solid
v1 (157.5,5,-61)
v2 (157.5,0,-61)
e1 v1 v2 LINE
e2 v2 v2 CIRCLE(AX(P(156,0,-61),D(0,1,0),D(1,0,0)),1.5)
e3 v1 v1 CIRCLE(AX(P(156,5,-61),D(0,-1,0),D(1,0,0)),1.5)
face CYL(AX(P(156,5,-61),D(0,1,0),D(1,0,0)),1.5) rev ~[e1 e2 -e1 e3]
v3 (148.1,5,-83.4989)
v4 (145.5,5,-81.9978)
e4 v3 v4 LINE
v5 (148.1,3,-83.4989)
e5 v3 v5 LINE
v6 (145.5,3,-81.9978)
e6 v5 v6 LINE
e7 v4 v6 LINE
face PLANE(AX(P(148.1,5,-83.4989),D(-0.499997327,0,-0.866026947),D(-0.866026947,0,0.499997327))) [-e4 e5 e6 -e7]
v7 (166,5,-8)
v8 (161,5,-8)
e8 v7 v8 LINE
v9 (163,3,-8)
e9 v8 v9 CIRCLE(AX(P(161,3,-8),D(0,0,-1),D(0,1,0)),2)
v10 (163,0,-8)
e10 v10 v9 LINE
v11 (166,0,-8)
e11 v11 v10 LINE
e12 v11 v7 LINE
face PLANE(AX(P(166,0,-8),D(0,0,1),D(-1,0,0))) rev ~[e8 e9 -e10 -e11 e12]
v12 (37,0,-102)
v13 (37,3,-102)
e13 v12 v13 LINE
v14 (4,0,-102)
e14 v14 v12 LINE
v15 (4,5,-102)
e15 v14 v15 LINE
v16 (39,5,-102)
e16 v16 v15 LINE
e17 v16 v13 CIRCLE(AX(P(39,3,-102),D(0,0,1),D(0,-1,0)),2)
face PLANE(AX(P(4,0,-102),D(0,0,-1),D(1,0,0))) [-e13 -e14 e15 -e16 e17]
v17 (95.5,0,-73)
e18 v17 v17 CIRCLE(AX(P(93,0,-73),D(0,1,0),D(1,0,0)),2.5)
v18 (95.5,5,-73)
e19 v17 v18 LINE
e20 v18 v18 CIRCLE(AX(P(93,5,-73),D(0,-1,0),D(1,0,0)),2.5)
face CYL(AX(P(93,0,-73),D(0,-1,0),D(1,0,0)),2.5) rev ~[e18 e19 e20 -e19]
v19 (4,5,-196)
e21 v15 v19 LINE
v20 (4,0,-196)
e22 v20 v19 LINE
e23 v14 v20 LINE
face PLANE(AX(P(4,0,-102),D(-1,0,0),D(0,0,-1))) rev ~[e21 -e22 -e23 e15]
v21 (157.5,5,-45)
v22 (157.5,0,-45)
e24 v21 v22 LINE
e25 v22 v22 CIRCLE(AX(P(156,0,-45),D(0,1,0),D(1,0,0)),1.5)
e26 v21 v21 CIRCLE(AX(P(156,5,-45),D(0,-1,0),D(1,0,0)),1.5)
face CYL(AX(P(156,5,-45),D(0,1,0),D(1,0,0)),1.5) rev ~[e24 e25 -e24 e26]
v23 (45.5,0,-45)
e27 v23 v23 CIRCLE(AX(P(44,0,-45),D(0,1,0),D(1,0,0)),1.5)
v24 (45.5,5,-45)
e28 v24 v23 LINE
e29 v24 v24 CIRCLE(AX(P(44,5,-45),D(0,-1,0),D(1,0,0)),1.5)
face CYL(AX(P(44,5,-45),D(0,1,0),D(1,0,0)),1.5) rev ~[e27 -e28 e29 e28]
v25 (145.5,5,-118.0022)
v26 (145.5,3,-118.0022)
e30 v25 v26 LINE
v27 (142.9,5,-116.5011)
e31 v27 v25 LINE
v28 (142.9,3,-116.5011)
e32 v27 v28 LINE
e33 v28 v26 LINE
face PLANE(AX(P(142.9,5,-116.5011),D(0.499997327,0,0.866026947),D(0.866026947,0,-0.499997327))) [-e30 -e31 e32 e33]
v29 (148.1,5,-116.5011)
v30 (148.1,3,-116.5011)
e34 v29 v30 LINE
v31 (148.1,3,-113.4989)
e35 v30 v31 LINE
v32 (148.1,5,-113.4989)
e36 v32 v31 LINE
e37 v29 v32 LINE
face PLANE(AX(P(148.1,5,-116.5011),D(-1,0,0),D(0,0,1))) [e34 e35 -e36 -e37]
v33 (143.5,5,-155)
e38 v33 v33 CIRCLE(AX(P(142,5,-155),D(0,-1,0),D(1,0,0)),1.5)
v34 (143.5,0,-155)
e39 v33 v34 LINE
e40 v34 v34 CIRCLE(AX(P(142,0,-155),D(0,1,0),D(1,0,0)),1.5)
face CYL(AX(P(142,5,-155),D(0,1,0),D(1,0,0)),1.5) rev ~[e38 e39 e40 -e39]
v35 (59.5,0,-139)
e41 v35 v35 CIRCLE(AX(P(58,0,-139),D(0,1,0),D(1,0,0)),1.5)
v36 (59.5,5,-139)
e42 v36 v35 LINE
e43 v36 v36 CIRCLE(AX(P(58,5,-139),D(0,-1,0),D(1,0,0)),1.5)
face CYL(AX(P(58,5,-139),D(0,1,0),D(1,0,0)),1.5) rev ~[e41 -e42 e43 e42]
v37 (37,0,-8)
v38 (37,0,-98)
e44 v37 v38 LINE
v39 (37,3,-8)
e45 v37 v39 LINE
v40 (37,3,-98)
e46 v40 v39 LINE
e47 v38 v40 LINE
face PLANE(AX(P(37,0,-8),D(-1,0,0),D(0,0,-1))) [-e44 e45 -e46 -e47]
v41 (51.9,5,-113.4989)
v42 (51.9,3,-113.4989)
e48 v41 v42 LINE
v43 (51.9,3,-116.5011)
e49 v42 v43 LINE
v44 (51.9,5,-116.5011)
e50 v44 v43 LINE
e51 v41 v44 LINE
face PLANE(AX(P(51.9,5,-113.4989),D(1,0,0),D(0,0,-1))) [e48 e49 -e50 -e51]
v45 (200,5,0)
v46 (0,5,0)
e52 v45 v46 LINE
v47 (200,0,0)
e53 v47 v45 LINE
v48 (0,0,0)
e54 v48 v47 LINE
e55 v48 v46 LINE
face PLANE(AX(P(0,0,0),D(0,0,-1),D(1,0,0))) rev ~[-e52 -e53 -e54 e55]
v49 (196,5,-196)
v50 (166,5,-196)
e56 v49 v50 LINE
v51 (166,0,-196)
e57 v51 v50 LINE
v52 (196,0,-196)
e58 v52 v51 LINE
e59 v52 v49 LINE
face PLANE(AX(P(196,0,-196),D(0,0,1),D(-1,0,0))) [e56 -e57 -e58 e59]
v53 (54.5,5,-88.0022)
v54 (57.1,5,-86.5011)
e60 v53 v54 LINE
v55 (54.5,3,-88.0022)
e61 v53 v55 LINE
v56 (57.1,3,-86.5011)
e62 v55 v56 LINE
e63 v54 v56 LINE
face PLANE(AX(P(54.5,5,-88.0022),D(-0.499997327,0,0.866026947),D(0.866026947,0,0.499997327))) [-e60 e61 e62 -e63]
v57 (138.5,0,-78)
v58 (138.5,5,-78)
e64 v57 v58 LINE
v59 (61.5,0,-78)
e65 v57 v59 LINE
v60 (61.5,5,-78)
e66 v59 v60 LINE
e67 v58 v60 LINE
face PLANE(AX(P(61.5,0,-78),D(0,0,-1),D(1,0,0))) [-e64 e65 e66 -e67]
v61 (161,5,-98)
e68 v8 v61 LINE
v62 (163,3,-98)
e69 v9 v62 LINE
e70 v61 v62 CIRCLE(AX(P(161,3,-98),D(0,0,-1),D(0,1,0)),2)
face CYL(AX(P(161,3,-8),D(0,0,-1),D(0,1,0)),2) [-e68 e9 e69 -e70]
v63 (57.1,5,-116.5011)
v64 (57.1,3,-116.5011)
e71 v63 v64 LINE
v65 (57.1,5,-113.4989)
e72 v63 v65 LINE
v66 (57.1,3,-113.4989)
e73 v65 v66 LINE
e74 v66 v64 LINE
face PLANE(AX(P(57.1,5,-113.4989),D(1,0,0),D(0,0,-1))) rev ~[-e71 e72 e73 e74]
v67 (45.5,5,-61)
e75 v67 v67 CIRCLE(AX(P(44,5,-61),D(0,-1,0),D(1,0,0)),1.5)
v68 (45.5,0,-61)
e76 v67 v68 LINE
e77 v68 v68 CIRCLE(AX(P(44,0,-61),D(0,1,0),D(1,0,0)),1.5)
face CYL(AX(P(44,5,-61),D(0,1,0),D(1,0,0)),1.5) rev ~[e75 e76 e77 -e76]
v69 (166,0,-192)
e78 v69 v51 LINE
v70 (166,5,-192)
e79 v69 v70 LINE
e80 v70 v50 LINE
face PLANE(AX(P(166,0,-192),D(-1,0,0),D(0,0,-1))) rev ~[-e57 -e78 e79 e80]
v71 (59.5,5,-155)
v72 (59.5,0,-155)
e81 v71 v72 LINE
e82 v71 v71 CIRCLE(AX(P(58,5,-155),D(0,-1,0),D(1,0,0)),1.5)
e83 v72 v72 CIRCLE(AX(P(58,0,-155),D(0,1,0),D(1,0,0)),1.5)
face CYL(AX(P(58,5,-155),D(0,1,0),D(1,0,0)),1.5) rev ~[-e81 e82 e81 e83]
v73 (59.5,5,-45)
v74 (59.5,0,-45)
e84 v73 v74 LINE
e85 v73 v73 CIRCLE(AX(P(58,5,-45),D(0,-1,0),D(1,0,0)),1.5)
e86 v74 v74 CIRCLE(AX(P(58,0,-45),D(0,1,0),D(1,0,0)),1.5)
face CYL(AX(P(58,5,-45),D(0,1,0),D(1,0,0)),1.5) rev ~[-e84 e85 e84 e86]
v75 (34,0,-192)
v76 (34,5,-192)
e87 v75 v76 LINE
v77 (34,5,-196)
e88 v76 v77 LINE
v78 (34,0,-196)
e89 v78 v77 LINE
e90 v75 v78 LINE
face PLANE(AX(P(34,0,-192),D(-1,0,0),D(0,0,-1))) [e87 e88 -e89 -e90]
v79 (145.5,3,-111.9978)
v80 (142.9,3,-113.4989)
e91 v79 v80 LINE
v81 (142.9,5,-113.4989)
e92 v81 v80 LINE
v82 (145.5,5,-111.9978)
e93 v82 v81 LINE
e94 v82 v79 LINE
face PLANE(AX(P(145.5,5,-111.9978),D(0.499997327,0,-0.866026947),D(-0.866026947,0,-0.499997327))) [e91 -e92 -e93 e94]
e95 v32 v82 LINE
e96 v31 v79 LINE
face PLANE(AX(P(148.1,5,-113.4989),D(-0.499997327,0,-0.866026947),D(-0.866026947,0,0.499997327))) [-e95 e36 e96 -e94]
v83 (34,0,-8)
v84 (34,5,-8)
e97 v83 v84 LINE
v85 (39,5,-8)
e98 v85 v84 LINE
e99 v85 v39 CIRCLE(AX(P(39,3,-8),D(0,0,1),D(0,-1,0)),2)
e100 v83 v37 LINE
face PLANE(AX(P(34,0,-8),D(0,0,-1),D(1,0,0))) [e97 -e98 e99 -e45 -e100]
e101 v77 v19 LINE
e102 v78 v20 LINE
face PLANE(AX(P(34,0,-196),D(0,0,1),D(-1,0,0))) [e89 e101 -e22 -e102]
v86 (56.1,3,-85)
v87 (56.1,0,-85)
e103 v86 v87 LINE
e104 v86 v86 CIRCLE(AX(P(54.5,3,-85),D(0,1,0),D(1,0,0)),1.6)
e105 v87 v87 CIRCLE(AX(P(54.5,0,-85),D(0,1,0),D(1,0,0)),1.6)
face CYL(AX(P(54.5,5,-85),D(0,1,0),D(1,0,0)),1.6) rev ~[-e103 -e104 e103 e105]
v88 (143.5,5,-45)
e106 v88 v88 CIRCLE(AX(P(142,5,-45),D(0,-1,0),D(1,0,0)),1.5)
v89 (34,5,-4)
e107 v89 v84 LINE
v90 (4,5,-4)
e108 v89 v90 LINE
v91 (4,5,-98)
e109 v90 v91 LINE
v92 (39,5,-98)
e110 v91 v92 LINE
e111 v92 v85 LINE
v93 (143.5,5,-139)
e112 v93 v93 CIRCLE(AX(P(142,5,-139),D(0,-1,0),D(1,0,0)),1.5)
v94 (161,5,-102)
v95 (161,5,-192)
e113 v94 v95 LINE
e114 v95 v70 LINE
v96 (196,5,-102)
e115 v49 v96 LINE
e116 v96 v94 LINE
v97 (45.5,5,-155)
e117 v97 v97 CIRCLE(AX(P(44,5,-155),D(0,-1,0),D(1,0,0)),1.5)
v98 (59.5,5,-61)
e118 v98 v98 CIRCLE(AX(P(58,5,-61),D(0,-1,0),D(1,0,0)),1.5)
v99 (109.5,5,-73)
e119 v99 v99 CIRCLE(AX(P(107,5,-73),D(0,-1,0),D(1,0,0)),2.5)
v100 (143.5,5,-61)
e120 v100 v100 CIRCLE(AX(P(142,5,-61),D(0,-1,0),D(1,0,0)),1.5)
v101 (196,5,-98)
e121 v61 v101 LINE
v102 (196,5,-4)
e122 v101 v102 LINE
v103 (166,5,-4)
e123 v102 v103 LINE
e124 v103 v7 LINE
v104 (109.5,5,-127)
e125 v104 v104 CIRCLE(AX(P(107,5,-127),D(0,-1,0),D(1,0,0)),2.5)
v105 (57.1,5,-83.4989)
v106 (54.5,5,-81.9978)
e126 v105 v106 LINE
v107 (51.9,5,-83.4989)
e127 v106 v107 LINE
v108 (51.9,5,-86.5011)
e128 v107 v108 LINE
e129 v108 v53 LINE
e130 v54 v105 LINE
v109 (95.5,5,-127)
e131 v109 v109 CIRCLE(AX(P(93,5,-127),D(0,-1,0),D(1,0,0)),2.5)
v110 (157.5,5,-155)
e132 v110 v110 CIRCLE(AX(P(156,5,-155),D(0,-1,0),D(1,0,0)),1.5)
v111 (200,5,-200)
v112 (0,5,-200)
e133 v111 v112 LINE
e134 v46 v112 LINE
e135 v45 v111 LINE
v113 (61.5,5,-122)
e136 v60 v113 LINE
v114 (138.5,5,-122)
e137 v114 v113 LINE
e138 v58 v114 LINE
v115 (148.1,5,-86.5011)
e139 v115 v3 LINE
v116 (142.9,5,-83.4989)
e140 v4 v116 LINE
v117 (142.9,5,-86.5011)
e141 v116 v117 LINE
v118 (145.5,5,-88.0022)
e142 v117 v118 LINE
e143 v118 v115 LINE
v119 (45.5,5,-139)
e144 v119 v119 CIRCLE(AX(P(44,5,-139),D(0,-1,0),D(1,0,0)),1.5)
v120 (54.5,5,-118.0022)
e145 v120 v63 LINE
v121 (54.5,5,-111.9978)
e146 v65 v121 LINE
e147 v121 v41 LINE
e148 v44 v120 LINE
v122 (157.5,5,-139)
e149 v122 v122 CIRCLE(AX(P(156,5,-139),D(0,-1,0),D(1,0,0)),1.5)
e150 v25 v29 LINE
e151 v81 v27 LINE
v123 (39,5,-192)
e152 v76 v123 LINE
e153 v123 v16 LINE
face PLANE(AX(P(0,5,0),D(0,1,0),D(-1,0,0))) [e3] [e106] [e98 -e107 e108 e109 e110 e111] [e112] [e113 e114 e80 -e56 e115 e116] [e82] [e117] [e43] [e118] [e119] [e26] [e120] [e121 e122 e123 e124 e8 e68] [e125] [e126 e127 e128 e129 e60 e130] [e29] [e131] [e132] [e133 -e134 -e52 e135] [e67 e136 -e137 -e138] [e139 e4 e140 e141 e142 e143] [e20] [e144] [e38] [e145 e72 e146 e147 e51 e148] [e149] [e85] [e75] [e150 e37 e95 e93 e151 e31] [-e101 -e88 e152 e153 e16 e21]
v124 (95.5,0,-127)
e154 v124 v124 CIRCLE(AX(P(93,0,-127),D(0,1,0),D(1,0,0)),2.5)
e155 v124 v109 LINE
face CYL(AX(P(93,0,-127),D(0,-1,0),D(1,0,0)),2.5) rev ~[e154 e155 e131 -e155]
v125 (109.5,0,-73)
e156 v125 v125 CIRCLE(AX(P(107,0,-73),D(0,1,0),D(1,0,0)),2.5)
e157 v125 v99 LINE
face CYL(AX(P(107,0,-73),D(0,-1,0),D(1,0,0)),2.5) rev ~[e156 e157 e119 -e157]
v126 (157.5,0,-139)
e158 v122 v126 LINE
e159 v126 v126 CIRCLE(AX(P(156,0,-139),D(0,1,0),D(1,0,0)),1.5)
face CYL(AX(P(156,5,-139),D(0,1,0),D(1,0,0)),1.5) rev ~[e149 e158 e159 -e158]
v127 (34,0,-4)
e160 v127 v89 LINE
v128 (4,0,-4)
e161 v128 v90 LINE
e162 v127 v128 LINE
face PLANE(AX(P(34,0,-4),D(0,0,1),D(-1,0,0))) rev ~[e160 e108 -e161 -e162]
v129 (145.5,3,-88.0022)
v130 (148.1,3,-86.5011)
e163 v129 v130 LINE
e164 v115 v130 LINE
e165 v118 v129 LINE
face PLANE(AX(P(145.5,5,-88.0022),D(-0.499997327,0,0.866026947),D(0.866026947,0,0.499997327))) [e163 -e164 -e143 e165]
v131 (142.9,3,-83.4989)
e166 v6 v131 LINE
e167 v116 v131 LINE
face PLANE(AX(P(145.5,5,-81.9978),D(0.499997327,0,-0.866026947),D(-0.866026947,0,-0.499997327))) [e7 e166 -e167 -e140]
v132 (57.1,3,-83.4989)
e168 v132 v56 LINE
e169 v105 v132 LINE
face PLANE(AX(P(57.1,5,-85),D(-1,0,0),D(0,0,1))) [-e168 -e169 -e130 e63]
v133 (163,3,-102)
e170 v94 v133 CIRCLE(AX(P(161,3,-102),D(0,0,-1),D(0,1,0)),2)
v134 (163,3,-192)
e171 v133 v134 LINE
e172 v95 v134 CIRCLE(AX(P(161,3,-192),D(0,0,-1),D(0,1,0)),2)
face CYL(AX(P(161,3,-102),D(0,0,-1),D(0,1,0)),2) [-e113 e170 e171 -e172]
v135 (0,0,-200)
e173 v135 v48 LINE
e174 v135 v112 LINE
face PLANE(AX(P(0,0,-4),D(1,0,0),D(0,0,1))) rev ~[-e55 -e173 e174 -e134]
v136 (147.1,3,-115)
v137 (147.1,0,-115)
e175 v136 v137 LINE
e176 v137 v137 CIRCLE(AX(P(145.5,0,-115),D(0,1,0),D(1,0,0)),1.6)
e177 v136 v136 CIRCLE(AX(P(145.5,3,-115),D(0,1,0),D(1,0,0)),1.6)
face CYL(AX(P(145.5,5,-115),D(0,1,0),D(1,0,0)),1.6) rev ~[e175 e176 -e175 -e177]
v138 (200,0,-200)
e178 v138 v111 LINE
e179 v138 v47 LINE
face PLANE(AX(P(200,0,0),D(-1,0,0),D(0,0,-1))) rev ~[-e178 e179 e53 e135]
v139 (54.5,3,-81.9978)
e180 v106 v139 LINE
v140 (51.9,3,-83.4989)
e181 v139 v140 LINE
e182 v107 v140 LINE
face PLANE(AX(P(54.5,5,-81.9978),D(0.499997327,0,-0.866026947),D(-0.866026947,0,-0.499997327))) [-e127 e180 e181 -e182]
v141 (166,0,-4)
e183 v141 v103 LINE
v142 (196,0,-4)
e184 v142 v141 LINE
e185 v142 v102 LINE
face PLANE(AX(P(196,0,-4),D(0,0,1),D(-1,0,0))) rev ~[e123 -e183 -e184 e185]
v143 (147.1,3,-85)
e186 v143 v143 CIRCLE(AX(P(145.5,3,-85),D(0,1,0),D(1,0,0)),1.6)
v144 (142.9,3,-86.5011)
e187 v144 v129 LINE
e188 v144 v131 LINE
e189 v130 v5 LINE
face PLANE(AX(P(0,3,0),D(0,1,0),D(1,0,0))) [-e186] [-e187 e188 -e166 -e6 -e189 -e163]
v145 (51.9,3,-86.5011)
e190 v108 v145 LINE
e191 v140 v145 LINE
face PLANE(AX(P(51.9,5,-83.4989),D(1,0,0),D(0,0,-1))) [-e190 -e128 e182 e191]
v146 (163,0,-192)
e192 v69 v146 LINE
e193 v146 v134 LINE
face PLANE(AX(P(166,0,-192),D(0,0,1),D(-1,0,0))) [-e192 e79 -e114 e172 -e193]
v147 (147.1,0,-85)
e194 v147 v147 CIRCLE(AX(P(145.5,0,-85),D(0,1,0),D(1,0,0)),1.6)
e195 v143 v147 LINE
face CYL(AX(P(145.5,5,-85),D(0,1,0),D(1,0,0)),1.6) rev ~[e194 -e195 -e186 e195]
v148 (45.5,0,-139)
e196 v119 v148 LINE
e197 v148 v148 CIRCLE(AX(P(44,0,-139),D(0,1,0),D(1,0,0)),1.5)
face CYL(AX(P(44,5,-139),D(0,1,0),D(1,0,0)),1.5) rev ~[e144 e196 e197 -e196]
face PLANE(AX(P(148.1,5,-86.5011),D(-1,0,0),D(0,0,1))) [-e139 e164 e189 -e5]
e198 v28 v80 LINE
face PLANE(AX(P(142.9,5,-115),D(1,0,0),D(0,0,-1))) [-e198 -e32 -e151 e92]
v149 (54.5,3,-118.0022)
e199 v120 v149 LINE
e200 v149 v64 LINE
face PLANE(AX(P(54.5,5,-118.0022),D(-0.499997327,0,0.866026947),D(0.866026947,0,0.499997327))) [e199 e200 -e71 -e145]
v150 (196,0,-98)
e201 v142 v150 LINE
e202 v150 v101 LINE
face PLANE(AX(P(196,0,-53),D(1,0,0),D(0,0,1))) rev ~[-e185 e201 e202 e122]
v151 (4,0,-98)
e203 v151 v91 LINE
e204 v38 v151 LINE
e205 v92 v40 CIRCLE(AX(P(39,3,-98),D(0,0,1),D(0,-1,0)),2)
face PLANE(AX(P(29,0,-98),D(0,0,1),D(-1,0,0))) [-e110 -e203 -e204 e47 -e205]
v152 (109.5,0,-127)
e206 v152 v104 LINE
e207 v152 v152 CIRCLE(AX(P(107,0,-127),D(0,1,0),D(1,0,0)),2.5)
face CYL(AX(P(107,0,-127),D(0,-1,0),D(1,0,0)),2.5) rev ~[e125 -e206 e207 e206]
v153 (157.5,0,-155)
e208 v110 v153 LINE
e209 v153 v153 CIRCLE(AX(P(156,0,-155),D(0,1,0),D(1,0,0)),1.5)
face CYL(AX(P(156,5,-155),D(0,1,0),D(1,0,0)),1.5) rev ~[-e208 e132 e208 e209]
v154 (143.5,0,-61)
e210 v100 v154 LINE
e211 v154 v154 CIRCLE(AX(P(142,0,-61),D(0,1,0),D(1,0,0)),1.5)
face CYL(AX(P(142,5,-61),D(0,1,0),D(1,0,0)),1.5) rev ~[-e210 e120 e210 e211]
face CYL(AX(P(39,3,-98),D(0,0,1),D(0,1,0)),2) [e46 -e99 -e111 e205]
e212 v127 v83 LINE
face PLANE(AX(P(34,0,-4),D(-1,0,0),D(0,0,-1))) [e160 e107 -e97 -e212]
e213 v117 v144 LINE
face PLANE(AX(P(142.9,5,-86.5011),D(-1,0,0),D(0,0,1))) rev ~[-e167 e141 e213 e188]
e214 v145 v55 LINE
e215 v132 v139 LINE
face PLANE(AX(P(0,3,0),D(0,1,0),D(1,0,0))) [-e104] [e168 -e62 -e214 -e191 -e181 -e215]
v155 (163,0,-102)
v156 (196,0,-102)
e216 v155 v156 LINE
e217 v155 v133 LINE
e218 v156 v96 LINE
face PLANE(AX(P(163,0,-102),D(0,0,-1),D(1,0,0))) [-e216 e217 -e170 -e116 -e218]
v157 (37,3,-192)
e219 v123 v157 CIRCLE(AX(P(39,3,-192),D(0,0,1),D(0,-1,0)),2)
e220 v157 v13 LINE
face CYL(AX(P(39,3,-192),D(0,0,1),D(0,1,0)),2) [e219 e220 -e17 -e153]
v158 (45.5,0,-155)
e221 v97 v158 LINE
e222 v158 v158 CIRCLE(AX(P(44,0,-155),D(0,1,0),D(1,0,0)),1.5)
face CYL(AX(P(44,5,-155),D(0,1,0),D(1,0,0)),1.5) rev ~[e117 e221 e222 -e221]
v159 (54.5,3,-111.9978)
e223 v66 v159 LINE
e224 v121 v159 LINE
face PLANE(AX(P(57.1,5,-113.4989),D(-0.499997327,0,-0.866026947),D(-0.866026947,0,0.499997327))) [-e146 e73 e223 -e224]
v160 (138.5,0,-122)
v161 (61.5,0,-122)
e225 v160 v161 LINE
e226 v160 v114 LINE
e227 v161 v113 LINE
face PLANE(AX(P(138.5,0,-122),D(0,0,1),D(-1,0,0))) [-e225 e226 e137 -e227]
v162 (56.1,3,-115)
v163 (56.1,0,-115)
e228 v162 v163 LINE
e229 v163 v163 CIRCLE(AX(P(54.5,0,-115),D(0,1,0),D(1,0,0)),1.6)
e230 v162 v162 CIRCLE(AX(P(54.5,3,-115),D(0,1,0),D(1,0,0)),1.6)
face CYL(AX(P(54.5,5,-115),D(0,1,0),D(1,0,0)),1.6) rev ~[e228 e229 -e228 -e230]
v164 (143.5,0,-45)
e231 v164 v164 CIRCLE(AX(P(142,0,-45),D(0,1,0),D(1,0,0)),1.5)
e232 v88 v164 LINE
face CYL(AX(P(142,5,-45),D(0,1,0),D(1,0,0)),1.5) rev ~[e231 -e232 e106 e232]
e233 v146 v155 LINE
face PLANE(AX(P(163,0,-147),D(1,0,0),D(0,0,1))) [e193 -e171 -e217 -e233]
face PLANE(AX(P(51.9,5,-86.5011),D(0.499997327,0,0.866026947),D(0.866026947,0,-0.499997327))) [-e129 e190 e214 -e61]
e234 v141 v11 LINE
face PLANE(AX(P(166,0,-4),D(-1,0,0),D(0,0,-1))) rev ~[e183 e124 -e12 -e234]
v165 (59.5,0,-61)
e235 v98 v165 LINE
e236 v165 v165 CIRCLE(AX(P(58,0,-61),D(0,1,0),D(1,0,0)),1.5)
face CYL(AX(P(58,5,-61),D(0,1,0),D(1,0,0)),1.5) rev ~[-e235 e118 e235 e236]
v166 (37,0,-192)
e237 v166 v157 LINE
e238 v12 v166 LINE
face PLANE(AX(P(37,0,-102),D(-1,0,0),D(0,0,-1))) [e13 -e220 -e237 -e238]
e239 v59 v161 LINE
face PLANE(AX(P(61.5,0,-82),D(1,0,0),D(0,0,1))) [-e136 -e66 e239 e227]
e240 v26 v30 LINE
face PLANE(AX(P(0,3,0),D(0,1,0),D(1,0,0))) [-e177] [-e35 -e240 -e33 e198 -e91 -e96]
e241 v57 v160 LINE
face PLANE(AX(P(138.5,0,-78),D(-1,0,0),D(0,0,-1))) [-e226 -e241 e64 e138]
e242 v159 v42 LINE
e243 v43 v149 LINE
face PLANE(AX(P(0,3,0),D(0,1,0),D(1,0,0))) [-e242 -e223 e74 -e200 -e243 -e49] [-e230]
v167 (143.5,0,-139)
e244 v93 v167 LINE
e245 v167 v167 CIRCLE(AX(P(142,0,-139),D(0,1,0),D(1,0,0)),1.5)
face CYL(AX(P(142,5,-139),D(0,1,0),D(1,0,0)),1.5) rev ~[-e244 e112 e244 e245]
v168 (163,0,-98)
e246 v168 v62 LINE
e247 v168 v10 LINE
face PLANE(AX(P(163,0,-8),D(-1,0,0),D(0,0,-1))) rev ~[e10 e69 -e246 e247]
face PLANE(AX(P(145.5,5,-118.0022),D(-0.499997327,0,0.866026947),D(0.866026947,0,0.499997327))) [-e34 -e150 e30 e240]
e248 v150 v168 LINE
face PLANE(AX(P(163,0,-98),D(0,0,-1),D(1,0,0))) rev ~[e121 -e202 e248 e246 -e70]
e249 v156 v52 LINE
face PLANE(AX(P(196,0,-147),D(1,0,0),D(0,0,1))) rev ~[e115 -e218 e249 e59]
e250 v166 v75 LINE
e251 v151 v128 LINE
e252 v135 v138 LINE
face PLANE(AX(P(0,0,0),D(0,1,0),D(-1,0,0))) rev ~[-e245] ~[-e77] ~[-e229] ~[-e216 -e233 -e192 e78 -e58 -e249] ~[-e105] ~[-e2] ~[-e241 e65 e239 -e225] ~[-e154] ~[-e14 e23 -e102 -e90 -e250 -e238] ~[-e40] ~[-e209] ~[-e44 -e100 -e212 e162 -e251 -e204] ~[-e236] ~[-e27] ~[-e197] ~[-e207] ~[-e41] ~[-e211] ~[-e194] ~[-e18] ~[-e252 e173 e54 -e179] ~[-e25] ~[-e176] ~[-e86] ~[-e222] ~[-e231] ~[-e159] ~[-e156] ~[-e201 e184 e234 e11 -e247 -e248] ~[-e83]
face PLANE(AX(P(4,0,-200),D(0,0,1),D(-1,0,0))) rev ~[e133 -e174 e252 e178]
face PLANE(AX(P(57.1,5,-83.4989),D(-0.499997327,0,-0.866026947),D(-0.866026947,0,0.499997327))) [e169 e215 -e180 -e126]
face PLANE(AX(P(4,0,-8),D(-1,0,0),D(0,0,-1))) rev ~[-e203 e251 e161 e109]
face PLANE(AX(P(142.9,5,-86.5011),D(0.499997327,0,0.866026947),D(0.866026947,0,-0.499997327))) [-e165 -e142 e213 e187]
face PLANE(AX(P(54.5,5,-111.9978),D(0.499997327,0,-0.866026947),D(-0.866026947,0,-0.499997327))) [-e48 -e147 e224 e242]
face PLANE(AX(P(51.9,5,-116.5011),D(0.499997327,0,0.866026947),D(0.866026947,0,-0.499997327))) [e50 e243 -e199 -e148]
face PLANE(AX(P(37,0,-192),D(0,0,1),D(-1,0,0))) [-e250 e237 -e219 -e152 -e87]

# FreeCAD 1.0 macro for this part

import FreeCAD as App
import Part
import Sketcher
from FreeCAD import Vector
Q = App.Units.Quantity


def edges_at(feature, points):
    """Names of the edges that pass closest to the given points."""
    edges = feature.Shape.Edges
    near = lambda p: min(range(len(edges)), key=lambda i: edges[i].distToShape(Part.Vertex(*p))[0])
    return sorted({f"Edge{near(p) + 1}" for p in points})


def add_polygon(sketch, points):
    """Adds a closed chain of lines whose ends are joined by coincident constraints."""
    first, n = sketch.GeometryCount, len(points)
    for a, b in zip(points, points[1:] + points[:1]):
        sketch.addGeometry(Part.LineSegment(App.Vector(*a, 0), App.Vector(*b, 0)), False)
    for i in range(n):
        sketch.addConstraint(Sketcher.Constraint("Coincident", first + i, 2, first + (i + 1) % n, 1))

doc = App.newDocument("Part")
body = doc.addObject("PartDesign::Body", "Body")

# Sketch on XZ plane
sketch1 = body.newObject("Sketcher::SketchObject", "Sketch")
sketch1.AttachmentSupport = (doc.getObject("XZ_Plane"), [""])
sketch1.MapMode = "FlatFace"
add_polygon(sketch1, [(0, 0), (200, 0), (200, -200), (0, -200)])  # lines 0-3
add_polygon(sketch1, [(4, -102), (4, -196), (34, -196), (34, -192), (37, -192), (37, -102)])  # lines 4-9
add_polygon(sketch1, [(4, -98), (37, -98), (37, -8), (34, -8), (34, -4), (4, -4)])  # lines 10-15
add_polygon(sketch1, [(163, -8), (163, -98), (196, -98), (196, -4), (166, -4), (166, -8)])  # lines 16-21
add_polygon(sketch1, [(163, -102), (163, -192), (166, -192), (166, -196), (196, -196), (196, -102)])  # lines 22-27
sketch1.addConstraint([
    Sketcher.Constraint("Horizontal", 0),
    Sketcher.Constraint("Vertical", 1),
    Sketcher.Constraint("Horizontal", 2),
    Sketcher.Constraint("Vertical", 3),
    Sketcher.Constraint("Vertical", 4),
    Sketcher.Constraint("Horizontal", 5),
    Sketcher.Constraint("Vertical", 6),
    Sketcher.Constraint("Horizontal", 7),
    Sketcher.Constraint("Vertical", 8),
    Sketcher.Constraint("Horizontal", 9),
    Sketcher.Constraint("Horizontal", 10),
    Sketcher.Constraint("Vertical", 11),
    Sketcher.Constraint("Horizontal", 12),
    Sketcher.Constraint("Vertical", 13),
    Sketcher.Constraint("Horizontal", 14),
    Sketcher.Constraint("Vertical", 15),
    Sketcher.Constraint("Vertical", 16),
    Sketcher.Constraint("Horizontal", 17),
    Sketcher.Constraint("Vertical", 18),
    Sketcher.Constraint("Horizontal", 19),
    Sketcher.Constraint("Vertical", 20),
    Sketcher.Constraint("Horizontal", 21),
    Sketcher.Constraint("Vertical", 22),
    Sketcher.Constraint("Horizontal", 23),
    Sketcher.Constraint("Vertical", 24),
    Sketcher.Constraint("Horizontal", 25),
    Sketcher.Constraint("Vertical", 26),
    Sketcher.Constraint("Horizontal", 27),
    Sketcher.Constraint("Coincident", 3, 2, -1, 1),
    Sketcher.Constraint("Horizontal", 15, 2, 16, 2),
    Sketcher.Constraint("Horizontal", 14, 2, 18, 2),
    Sketcher.Constraint("Horizontal", 12, 2, 20, 2),
    Sketcher.Constraint("Horizontal", 7, 2, 22, 2),
    Sketcher.Constraint("Horizontal", 5, 2, 24, 2),
    Sketcher.Constraint("Horizontal", 9, 2, 26, 2),
    Sketcher.Constraint("Vertical", 8, 2, 10, 2),
    Sketcher.Constraint("Vertical", 6, 2, 12, 2),
    Sketcher.Constraint("Vertical", 9, 2, 14, 2),
    Sketcher.Constraint("Vertical", 21, 2, 22, 2),
    Sketcher.Constraint("Vertical", 20, 2, 23, 2),
    Sketcher.Constraint("Vertical", 18, 2, 25, 2),
    Sketcher.Constraint("Equal", 10, 17),
    Sketcher.Constraint("Equal", 14, 19),
    Sketcher.Constraint("Equal", 2, 1),
    Sketcher.Constraint("Equal", 8, 11),
    Sketcher.Constraint("Equal", 6, 13),
    Sketcher.Constraint("DistanceX", 0, 1, 0, 2, 200.0),
    Sketcher.Constraint("DistanceX", 7, 1, 7, 2, 3.0),
    Sketcher.Constraint("DistanceY", 6, 1, 6, 2, 4.0),
    Sketcher.Constraint("DistanceX", -1, 1, 4, 2, 4.0),
    Sketcher.Constraint("DistanceX", -1, 1, 5, 2, 34.0),
    Sketcher.Constraint("DistanceY", 11, 2, -1, 1, 8.0),
    Sketcher.Constraint("DistanceY", 2, 2, 4, 2, 4.0),
    Sketcher.Constraint("DistanceY", 8, 2, 10, 2, 4.0),
    Sketcher.Constraint("DistanceX", 17, 2, 0, 2, 4.0),
])
pad1 = body.newObject("PartDesign::Pad", "Pad")
pad1.Profile = sketch1
pad1.Length = 5
pad1.Reversed = True

# Sketch on XZ plane
sketch2 = body.newObject("Sketcher::SketchObject", "Sketch001")
sketch2.AttachmentSupport = (doc.getObject("XZ_Plane"), [""])
sketch2.MapMode = "FlatFace"
sketch2.AttachmentOffset = App.Placement(Vector(0, 0, -5), App.Rotation())
sketch2.addGeometry([
    Part.Circle(Vector(44, -155, 0), Vector(0, 0, 1), 1.5),  # 0
    Part.Circle(Vector(44, -139, 0), Vector(0, 0, 1), 1.5),  # 1
    Part.Circle(Vector(58, -155, 0), Vector(0, 0, 1), 1.5),  # 2
    Part.Circle(Vector(58, -139, 0), Vector(0, 0, 1), 1.5),  # 3
    Part.Circle(Vector(142, -155, 0), Vector(0, 0, 1), 1.5),  # 4
    Part.Circle(Vector(142, -139, 0), Vector(0, 0, 1), 1.5),  # 5
    Part.Circle(Vector(156, -155, 0), Vector(0, 0, 1), 1.5),  # 6
    Part.Circle(Vector(156, -139, 0), Vector(0, 0, 1), 1.5),  # 7
    Part.Circle(Vector(142, -61, 0), Vector(0, 0, 1), 1.5),  # 8
    Part.Circle(Vector(142, -45, 0), Vector(0, 0, 1), 1.5),  # 9
    Part.Circle(Vector(156, -61, 0), Vector(0, 0, 1), 1.5),  # 10
    Part.Circle(Vector(156, -45, 0), Vector(0, 0, 1), 1.5),  # 11
    Part.Circle(Vector(58, -45, 0), Vector(0, 0, 1), 1.5),  # 12
    Part.Circle(Vector(58, -61, 0), Vector(0, 0, 1), 1.5),  # 13
    Part.Circle(Vector(44, -61, 0), Vector(0, 0, 1), 1.5),  # 14
    Part.Circle(Vector(44, -45, 0), Vector(0, 0, 1), 1.5),  # 15
], False)
sketch2.addConstraint([
    Sketcher.Constraint("Equal", 0, 1),
    Sketcher.Constraint("Equal", 1, 2),
    Sketcher.Constraint("Equal", 2, 3),
    Sketcher.Constraint("Equal", 3, 4),
    Sketcher.Constraint("Equal", 4, 5),
    Sketcher.Constraint("Equal", 5, 6),
    Sketcher.Constraint("Equal", 6, 7),
    Sketcher.Constraint("Equal", 7, 8),
    Sketcher.Constraint("Equal", 8, 9),
    Sketcher.Constraint("Equal", 9, 10),
    Sketcher.Constraint("Equal", 10, 11),
    Sketcher.Constraint("Equal", 11, 12),
    Sketcher.Constraint("Equal", 12, 13),
    Sketcher.Constraint("Equal", 13, 14),
    Sketcher.Constraint("Equal", 14, 15),
    Sketcher.Constraint("Horizontal", 0, 3, 2, 3),
    Sketcher.Constraint("Horizontal", 1, 3, 3, 3),
    Sketcher.Constraint("Horizontal", 2, 3, 4, 3),
    Sketcher.Constraint("Horizontal", 3, 3, 5, 3),
    Sketcher.Constraint("Horizontal", 4, 3, 6, 3),
    Sketcher.Constraint("Horizontal", 5, 3, 7, 3),
    Sketcher.Constraint("Horizontal", 8, 3, 10, 3),
    Sketcher.Constraint("Horizontal", 9, 3, 11, 3),
    Sketcher.Constraint("Horizontal", 11, 3, 12, 3),
    Sketcher.Constraint("Horizontal", 10, 3, 13, 3),
    Sketcher.Constraint("Horizontal", 13, 3, 14, 3),
    Sketcher.Constraint("Horizontal", 12, 3, 15, 3),
    Sketcher.Constraint("Vertical", 0, 3, 1, 3),
    Sketcher.Constraint("Vertical", 2, 3, 3, 3),
    Sketcher.Constraint("Vertical", 4, 3, 5, 3),
    Sketcher.Constraint("Vertical", 6, 3, 7, 3),
    Sketcher.Constraint("Vertical", 5, 3, 8, 3),
    Sketcher.Constraint("Vertical", 8, 3, 9, 3),
    Sketcher.Constraint("Vertical", 7, 3, 10, 3),
    Sketcher.Constraint("Vertical", 10, 3, 11, 3),
    Sketcher.Constraint("Vertical", 3, 3, 12, 3),
    Sketcher.Constraint("Vertical", 12, 3, 13, 3),
    Sketcher.Constraint("Vertical", 1, 3, 14, 3),
    Sketcher.Constraint("Vertical", 14, 3, 15, 3),
    Sketcher.Constraint("Diameter", 0, 3.0),
    Sketcher.Constraint("DistanceY", 0, 3, 1, 3, 16.0),
    Sketcher.Constraint("DistanceX", 0, 3, 2, 3, 14.0),
    Sketcher.Constraint("DistanceX", 4, 3, 6, 3, 14.0),
    Sketcher.Constraint("DistanceY", 8, 3, 9, 3, 16.0),
    Sketcher.Constraint("DistanceX", -1, 1, 0, 3, 44.0),
    Sketcher.Constraint("DistanceY", 0, 3, -1, 1, 155.0),
    Sketcher.Constraint("DistanceX", -1, 1, 4, 3, 142.0),
    Sketcher.Constraint("DistanceY", 8, 3, -1, 1, 61.0),
])
pocket1 = body.newObject("PartDesign::Pocket", "Pocket")
pocket1.Profile = sketch2
pocket1.Length = 5
pocket1.Reversed = True
doc.recompute()

fillet = body.newObject("PartDesign::Fillet", "Fillet")
fillet.Base = (pocket1, edges_at(pocket1, [
    (163, 5, -53),
    (163, 5, -147),
    (37, 5, -147),
    (37, 5, -53),
]))
fillet.Radius = 2

# Sketch on XZ plane
sketch3 = body.newObject("Sketcher::SketchObject", "Sketch002")
sketch3.AttachmentSupport = (doc.getObject("XZ_Plane"), [""])
sketch3.MapMode = "FlatFace"
sketch3.addGeometry([
    Part.Circle(Vector(107, -73, 0), Vector(0, 0, 1), 2.5),
    Part.Circle(Vector(93, -73, 0), Vector(0, 0, 1), 2.5),
    Part.Circle(Vector(107, -127, 0), Vector(0, 0, 1), 2.5),
    Part.Circle(Vector(93, -127, 0), Vector(0, 0, 1), 2.5),
], False)
sketch3.addConstraint([
    Sketcher.Constraint("Equal", 0, 1),
    Sketcher.Constraint("Equal", 1, 2),
    Sketcher.Constraint("Equal", 2, 3),
    Sketcher.Constraint("Horizontal", 0, 3, 1, 3),
    Sketcher.Constraint("Horizontal", 2, 3, 3, 3),
    Sketcher.Constraint("Vertical", 0, 3, 2, 3),
    Sketcher.Constraint("Vertical", 1, 3, 3, 3),
    Sketcher.Constraint("Diameter", 0, 5.0),
    Sketcher.Constraint("DistanceX", -1, 1, 0, 3, 107.0),
    Sketcher.Constraint("DistanceY", 0, 3, -1, 1, 73.0),
    Sketcher.Constraint("DistanceX", -1, 1, 1, 3, 93.0),
    Sketcher.Constraint("DistanceY", 2, 3, -1, 1, 127.0),
])
pocket2 = body.newObject("PartDesign::Pocket", "Pocket001")
pocket2.Profile = sketch3
pocket2.Length = 5

# Sketch on XZ plane
sketch4 = body.newObject("Sketcher::SketchObject", "Sketch003")
sketch4.AttachmentSupport = (doc.getObject("XZ_Plane"), [""])
sketch4.MapMode = "FlatFace"
add_polygon(sketch4, [(61.5, -78), (61.5, -122), (138.5, -122), (138.5, -78)])  # lines 0-3
sketch4.addConstraint([
    Sketcher.Constraint("Vertical", 0),
    Sketcher.Constraint("Horizontal", 1),
    Sketcher.Constraint("Vertical", 2),
    Sketcher.Constraint("Horizontal", 3),
    Sketcher.Constraint("DistanceX", 1, 1, 1, 2, 77.0),
    Sketcher.Constraint("DistanceY", 0, 2, 0, 1, 44.0),
    Sketcher.Constraint("DistanceY", 0, 2, -1, 1, 122.0),
    Sketcher.Constraint("DistanceX", -1, 1, 0, 2, 61.5),
])
pocket3 = body.newObject("PartDesign::Pocket", "Pocket002")
pocket3.Profile = sketch4
pocket3.Length = 5

# Sketch on XZ plane
sketch5 = body.newObject("Sketcher::SketchObject", "Sketch004")
sketch5.AttachmentSupport = (doc.getObject("XZ_Plane"), [""])
sketch5.MapMode = "FlatFace"
sketch5.AttachmentOffset = App.Placement(Vector(0, 0, -5), App.Rotation())
add_polygon(sketch5, [(142.9, -86.5011), (142.9, -83.4989), (145.5, -81.9978), (148.1, -83.4989), (148.1, -86.5011), (145.5, -88.0022)])  # lines 0-5
sketch5.addGeometry(Part.Circle(Vector(145.5, -85, 0), Vector(0, 0, 1), 1.6), False)  # 6
add_polygon(sketch5, [(57.1, -83.4989), (57.1, -86.5011), (54.5, -88.0022), (51.9, -86.5011), (51.9, -83.4989), (54.5, -81.9978)])  # lines 7-12
sketch5.addGeometry(Part.Circle(Vector(54.5, -85, 0), Vector(0, 0, 1), 1.6), False)  # 13
add_polygon(sketch5, [(57.1, -113.4989), (57.1, -116.5011), (54.5, -118.0022), (51.9, -116.5011), (51.9, -113.4989), (54.5, -111.9978)])  # lines 14-19
sketch5.addGeometry(Part.Circle(Vector(54.5, -115, 0), Vector(0, 0, 1), 1.6), False)  # 20
add_polygon(sketch5, [(142.9, -116.5011), (142.9, -113.4989), (145.5, -111.9978), (148.1, -113.4989), (148.1, -116.5011), (145.5, -118.0022)])  # lines 21-26
sketch5.addGeometry(Part.Circle(Vector(145.5, -115, 0), Vector(0, 0, 1), 1.6), False)  # 27
sketch5.addConstraint([
    Sketcher.Constraint("Vertical", 0),
    Sketcher.Constraint("Vertical", 3),
    Sketcher.Constraint("Vertical", 7),
    Sketcher.Constraint("Vertical", 10),
    Sketcher.Constraint("Vertical", 14),
    Sketcher.Constraint("Vertical", 17),
    Sketcher.Constraint("Vertical", 21),
    Sketcher.Constraint("Vertical", 24),
    Sketcher.Constraint("Equal", 6, 13),
    Sketcher.Constraint("Equal", 13, 20),
    Sketcher.Constraint("Equal", 20, 27),
    Sketcher.Constraint("Parallel", 1, 4),
    Sketcher.Constraint("Parallel", 2, 5),
    Sketcher.Constraint("Parallel", 4, 8),
    Sketcher.Constraint("Parallel", 5, 9),
    Sketcher.Constraint("Parallel", 8, 11),
    Sketcher.Constraint("Parallel", 9, 12),
    Sketcher.Constraint("Parallel", 11, 15),
    Sketcher.Constraint("Parallel", 12, 16),
    Sketcher.Constraint("Parallel", 15, 18),
    Sketcher.Constraint("Parallel", 16, 19),
    Sketcher.Constraint("Parallel", 18, 22),
    Sketcher.Constraint("Parallel", 19, 23),
    Sketcher.Constraint("Parallel", 22, 25),
    Sketcher.Constraint("Parallel", 23, 26),
    Sketcher.Constraint("Horizontal", 6, 3, 13, 3),
    Sketcher.Constraint("Horizontal", 20, 3, 27, 3),
    Sketcher.Constraint("Horizontal", 0, 2, 2, 2),
    Sketcher.Constraint("Horizontal", 3, 2, 5, 2),
    Sketcher.Constraint("Horizontal", 5, 2, 7, 2),
    Sketcher.Constraint("Horizontal", 4, 2, 8, 2),
    Sketcher.Constraint("Horizontal", 7, 2, 9, 2),
    Sketcher.Constraint("Horizontal", 2, 2, 10, 2),
    Sketcher.Constraint("Horizontal", 1, 2, 11, 2),
    Sketcher.Constraint("Horizontal", 14, 2, 16, 2),
    Sketcher.Constraint("Horizontal", 17, 2, 19, 2),
    Sketcher.Constraint("Horizontal", 19, 2, 21, 2),
    Sketcher.Constraint("Horizontal", 18, 2, 22, 2),
    Sketcher.Constraint("Horizontal", 21, 2, 23, 2),
    Sketcher.Constraint("Horizontal", 16, 2, 24, 2),
    Sketcher.Constraint("Horizontal", 15, 2, 25, 2),
    Sketcher.Constraint("Vertical", 13, 3, 20, 3),
    Sketcher.Constraint("Vertical", 6, 3, 27, 3),
    Sketcher.Constraint("Vertical", 27, 3, 1, 2),
    Sketcher.Constraint("Vertical", 1, 2, 4, 2),
    Sketcher.Constraint("Vertical", 20, 3, 8, 2),
    Sketcher.Constraint("Vertical", 12, 2, 14, 2),
    Sketcher.Constraint("Vertical", 11, 2, 15, 2),
    Sketcher.Constraint("Vertical", 5, 2, 21, 2),
    Sketcher.Constraint("Equal", 10, 14),
    Sketcher.Constraint("Diameter", 6, 3.2),
    Sketcher.Constraint("Angle", 1, Q("29.9998 deg")),
    Sketcher.Constraint("DistanceX", 13, 3, 6, 3, 91.0),
    Sketcher.Constraint("DistanceY", 20, 3, 13, 3, 30.0),
    Sketcher.Constraint("DistanceY", 14, 2, 7, 2, 30.0),
    Sketcher.Constraint("DistanceX", 0, 2, 6, 3, 2.6),
    Sketcher.Constraint("DistanceY", 6, 3, -1, 1, 85.0),
    Sketcher.Constraint("DistanceX", -1, 1, 6, 3, 145.5),
    Sketcher.Constraint("DistanceY", 0, 1, 0, 2, 3.0022),
    Sketcher.Constraint("DistanceY", 0, 2, -1, 1, 83.499),
])
pocket4 = body.newObject("PartDesign::Pocket", "Pocket003")
pocket4.Profile = sketch5
pocket4.Length = 2
pocket4.Reversed = True

# Sketch on XZ plane
sketch6 = body.newObject("Sketcher::SketchObject", "Sketch005")
sketch6.AttachmentSupport = (doc.getObject("XZ_Plane"), [""])
sketch6.MapMode = "FlatFace"
sketch6.AttachmentOffset = App.Placement(Vector(0, 0, -5), App.Rotation())
sketch6.addGeometry([
    Part.Circle(Vector(145.5, -115, 0), Vector(0, 0, 1), 1.6),
    Part.Circle(Vector(145.5, -85, 0), Vector(0, 0, 1), 1.6),
    Part.Circle(Vector(54.5, -85, 0), Vector(0, 0, 1), 1.6),
    Part.Circle(Vector(54.5, -115, 0), Vector(0, 0, 1), 1.6),
], False)
sketch6.addConstraint([
    Sketcher.Constraint("Equal", 0, 1),
    Sketcher.Constraint("Equal", 1, 2),
    Sketcher.Constraint("Equal", 2, 3),
    Sketcher.Constraint("Horizontal", 1, 3, 2, 3),
    Sketcher.Constraint("Horizontal", 0, 3, 3, 3),
    Sketcher.Constraint("Vertical", 0, 3, 1, 3),
    Sketcher.Constraint("Vertical", 2, 3, 3, 3),
    Sketcher.Constraint("Diameter", 0, 3.2),
    Sketcher.Constraint("DistanceY", 0, 3, -1, 1, 115.0),
    Sketcher.Constraint("DistanceY", 1, 3, -1, 1, 85.0),
    Sketcher.Constraint("DistanceX", 2, 3, 1, 3, 91.0),
    Sketcher.Constraint("DistanceX", -1, 1, 0, 3, 145.5),
])
pocket5 = body.newObject("PartDesign::Pocket", "Pocket004")
pocket5.Profile = sketch6
pocket5.Length = 5
pocket5.Reversed = True

doc.recompute()
